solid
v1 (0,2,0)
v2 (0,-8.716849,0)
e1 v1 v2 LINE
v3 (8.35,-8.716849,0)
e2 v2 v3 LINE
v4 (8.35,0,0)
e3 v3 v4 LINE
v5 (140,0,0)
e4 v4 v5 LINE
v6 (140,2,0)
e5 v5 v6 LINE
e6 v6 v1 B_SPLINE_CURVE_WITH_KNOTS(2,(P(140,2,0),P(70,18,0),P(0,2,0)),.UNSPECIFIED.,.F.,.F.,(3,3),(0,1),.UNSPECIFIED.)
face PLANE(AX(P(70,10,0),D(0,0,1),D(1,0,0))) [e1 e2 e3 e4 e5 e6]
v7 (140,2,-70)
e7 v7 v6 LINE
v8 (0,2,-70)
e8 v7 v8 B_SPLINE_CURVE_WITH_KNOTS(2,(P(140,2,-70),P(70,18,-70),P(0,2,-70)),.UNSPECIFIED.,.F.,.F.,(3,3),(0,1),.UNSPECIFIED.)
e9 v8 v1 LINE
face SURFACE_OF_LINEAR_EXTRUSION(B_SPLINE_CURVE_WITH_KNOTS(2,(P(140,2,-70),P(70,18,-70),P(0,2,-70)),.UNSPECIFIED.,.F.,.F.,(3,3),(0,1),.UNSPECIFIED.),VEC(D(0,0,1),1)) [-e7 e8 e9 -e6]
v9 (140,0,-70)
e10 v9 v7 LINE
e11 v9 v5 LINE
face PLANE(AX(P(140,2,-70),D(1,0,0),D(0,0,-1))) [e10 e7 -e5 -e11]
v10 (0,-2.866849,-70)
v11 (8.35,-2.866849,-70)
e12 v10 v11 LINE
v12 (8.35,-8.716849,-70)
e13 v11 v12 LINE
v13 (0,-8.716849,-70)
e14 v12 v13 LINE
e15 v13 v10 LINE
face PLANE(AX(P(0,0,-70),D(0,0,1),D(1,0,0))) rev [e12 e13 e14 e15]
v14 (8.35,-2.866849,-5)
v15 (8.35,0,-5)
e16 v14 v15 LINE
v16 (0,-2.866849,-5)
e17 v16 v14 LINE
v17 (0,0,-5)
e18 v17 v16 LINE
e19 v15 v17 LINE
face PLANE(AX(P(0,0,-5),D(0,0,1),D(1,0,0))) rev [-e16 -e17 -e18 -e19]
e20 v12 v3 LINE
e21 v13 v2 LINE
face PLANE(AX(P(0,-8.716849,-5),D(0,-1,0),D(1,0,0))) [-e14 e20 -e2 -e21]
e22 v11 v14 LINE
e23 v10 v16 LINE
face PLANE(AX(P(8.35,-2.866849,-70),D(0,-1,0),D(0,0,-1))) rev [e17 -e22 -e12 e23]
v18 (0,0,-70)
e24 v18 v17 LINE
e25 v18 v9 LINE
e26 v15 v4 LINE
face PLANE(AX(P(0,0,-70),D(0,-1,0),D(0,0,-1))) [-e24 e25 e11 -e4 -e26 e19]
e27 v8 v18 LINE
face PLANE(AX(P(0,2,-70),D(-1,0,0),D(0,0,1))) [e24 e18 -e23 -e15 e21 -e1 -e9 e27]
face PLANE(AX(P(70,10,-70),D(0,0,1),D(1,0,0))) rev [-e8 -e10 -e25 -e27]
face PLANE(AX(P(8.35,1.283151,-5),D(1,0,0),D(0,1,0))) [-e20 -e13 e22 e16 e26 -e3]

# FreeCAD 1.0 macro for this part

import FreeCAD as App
import Part
import Sketcher

doc = App.newDocument("Part")
body = doc.addObject("PartDesign::Body", "Body")

# Sketch on XZ plane
sketch1 = body.newObject("Sketcher::SketchObject", "Sketch")
sketch1.AttachmentSupport = (doc.getObject("XZ_Plane"), [""])
sketch1.MapMode = "FlatFace"
sketch1.addGeometry(Part.LineSegment(App.Vector(0, -70, 0), App.Vector(0, 0, 0)), False)
sketch1.addGeometry(Part.LineSegment(App.Vector(0, 0, 0), App.Vector(140, 0, 0)), False)
sketch1.addGeometry(Part.LineSegment(App.Vector(140, 0, 0), App.Vector(140, -70, 0)), False)
sketch1.addGeometry(Part.LineSegment(App.Vector(140, -70, 0), App.Vector(0, -70, 0)), False)
sketch1.addConstraint(Sketcher.Constraint("Coincident", 0, 2, 1, 1))
sketch1.addConstraint(Sketcher.Constraint("Coincident", 1, 2, 2, 1))
sketch1.addConstraint(Sketcher.Constraint("Coincident", 2, 2, 3, 1))
sketch1.addConstraint(Sketcher.Constraint("Coincident", 3, 2, 0, 1))
sketch1.addConstraint(Sketcher.Constraint("Vertical", 0))
sketch1.addConstraint(Sketcher.Constraint("Horizontal", 1))
sketch1.addConstraint(Sketcher.Constraint("Vertical", 2))
sketch1.addConstraint(Sketcher.Constraint("Horizontal", 3))
sketch1.addConstraint(Sketcher.Constraint("Coincident", 0, 2, -1, 1))
sketch1.addConstraint(Sketcher.Constraint("DistanceX", 1, 1, 1, 2, 140.0))
sketch1.addConstraint(Sketcher.Constraint("DistanceY", 0, 1, 0, 2, 70.0))
pad1 = body.newObject("PartDesign::Pad", "Pad")
pad1.Profile = sketch1
pad1.Length = 10
pad1.Reversed = True
body2 = doc.addObject("PartDesign::Body", "Body001")

# Sketch on XY plane
sketch2 = body2.newObject("Sketcher::SketchObject", "Sketch001")
sketch2.AttachmentSupport = (doc.getObject("XY_Plane001"), [""])
sketch2.MapMode = "FlatFace"
sketch2.addGeometry(Part.LineSegment(App.Vector(0, 0, 0), App.Vector(140, 0, 0)), False)
sketch2.addGeometry(Part.LineSegment(App.Vector(140, 0, 0), App.Vector(140, 2, 0)), False)
sketch2.addGeometry(Part.BSplineCurve([App.Vector(0, 2, 0), App.Vector(70, 18, 0), App.Vector(140, 2, 0)], [3, 3], [0, 1], False, 2, [1, 1, 1], False), False)
sketch2.addGeometry(Part.LineSegment(App.Vector(0, 2, 0), App.Vector(0, 0, 0)), False)
sketch2.addConstraint(Sketcher.Constraint("Block", 2))
sketch2.addConstraint(Sketcher.Constraint("Coincident", 0, 2, 1, 1))
sketch2.addConstraint(Sketcher.Constraint("Coincident", 1, 2, 2, 2))
sketch2.addConstraint(Sketcher.Constraint("Coincident", 2, 1, 3, 1))
sketch2.addConstraint(Sketcher.Constraint("Coincident", 3, 2, 0, 1))
sketch2.addConstraint(Sketcher.Constraint("Horizontal", 0))
sketch2.addConstraint(Sketcher.Constraint("Vertical", 1))
sketch2.addConstraint(Sketcher.Constraint("Vertical", 3))
sketch2.addConstraint(Sketcher.Constraint("PointOnObject", 0, 2, -1))
pad2 = body2.newObject("PartDesign::Pad", "Pad001")
pad2.Profile = sketch2
pad2.Length = 70
pad2.Reversed = True
doc.recompute()

boolean = body2.newObject("PartDesign::Boolean", "Boolean")
boolean.Type = "Common"
boolean.addObjects([body])

# Sketch on XY plane
sketch3 = body2.newObject("Sketcher::SketchObject", "Sketch002")
sketch3.AttachmentSupport = (doc.getObject("XY_Plane001"), [""])
sketch3.MapMode = "FlatFace"
sketch3.addGeometry(Part.LineSegment(App.Vector(0, 1.283151, 0), App.Vector(0, -8.716849, 0)), False)
sketch3.addGeometry(Part.LineSegment(App.Vector(0, -8.716849, 0), App.Vector(8.35, -8.716849, 0)), False)
sketch3.addGeometry(Part.LineSegment(App.Vector(8.35, -8.716849, 0), App.Vector(8.35, 1.283151, 0)), False)
sketch3.addGeometry(Part.LineSegment(App.Vector(8.35, 1.283151, 0), App.Vector(0, 1.283151, 0)), False)
sketch3.addConstraint(Sketcher.Constraint("Coincident", 0, 2, 1, 1))
sketch3.addConstraint(Sketcher.Constraint("Coincident", 1, 2, 2, 1))
sketch3.addConstraint(Sketcher.Constraint("Coincident", 2, 2, 3, 1))
sketch3.addConstraint(Sketcher.Constraint("Coincident", 3, 2, 0, 1))
sketch3.addConstraint(Sketcher.Constraint("Vertical", 0))
sketch3.addConstraint(Sketcher.Constraint("Horizontal", 1))
sketch3.addConstraint(Sketcher.Constraint("Vertical", 2))
sketch3.addConstraint(Sketcher.Constraint("Horizontal", 3))
sketch3.addConstraint(Sketcher.Constraint("PointOnObject", 0, 2, -2))
sketch3.addConstraint(Sketcher.Constraint("DistanceY", 0, 2, 0, 1, 10.0))
sketch3.addConstraint(Sketcher.Constraint("DistanceX", 1, 1, 1, 2, 8.35))
sketch3.addConstraint(Sketcher.Constraint("DistanceY", 0, 2, -1, 1, 8.716849))
pad3 = body2.newObject("PartDesign::Pad", "Pad002")
pad3.Profile = sketch3
pad3.Length = 5
pad3.Reversed = True

# Sketch on XY plane
sketch4 = body2.newObject("Sketcher::SketchObject", "Sketch003")
sketch4.AttachmentSupport = (doc.getObject("XY_Plane001"), [""])
sketch4.MapMode = "FlatFace"
sketch4.AttachmentOffset = App.Placement(App.Vector(0, 0, -5), App.Rotation())
sketch4.addGeometry(Part.LineSegment(App.Vector(8.35, -2.866849, 0), App.Vector(8.35, -8.716849, 0)), False)
sketch4.addGeometry(Part.LineSegment(App.Vector(8.35, -8.716849, 0), App.Vector(0, -8.716849, 0)), False)
sketch4.addGeometry(Part.LineSegment(App.Vector(0, -8.716849, 0), App.Vector(0, -2.866849, 0)), False)
sketch4.addGeometry(Part.LineSegment(App.Vector(0, -2.866849, 0), App.Vector(8.35, -2.866849, 0)), False)
sketch4.addConstraint(Sketcher.Constraint("Coincident", 0, 2, 1, 1))
sketch4.addConstraint(Sketcher.Constraint("Coincident", 1, 2, 2, 1))
sketch4.addConstraint(Sketcher.Constraint("Coincident", 2, 2, 3, 1))
sketch4.addConstraint(Sketcher.Constraint("Coincident", 3, 2, 0, 1))
sketch4.addConstraint(Sketcher.Constraint("Vertical", 0))
sketch4.addConstraint(Sketcher.Constraint("Horizontal", 1))
sketch4.addConstraint(Sketcher.Constraint("Vertical", 2))
sketch4.addConstraint(Sketcher.Constraint("Horizontal", 3))
sketch4.addConstraint(Sketcher.Constraint("PointOnObject", 1, 2, -2))
sketch4.addConstraint(Sketcher.Constraint("DistanceX", 1, 2, 1, 1, 8.35))
sketch4.addConstraint(Sketcher.Constraint("DistanceY", 0, 2, 0, 1, 5.85))
sketch4.addConstraint(Sketcher.Constraint("DistanceY", 0, 2, -1, 1, 8.716849))
pad4 = body2.newObject("PartDesign::Pad", "Pad003")
pad4.Profile = sketch4
pad4.Length = 65
pad4.Reversed = True

doc.recompute()
